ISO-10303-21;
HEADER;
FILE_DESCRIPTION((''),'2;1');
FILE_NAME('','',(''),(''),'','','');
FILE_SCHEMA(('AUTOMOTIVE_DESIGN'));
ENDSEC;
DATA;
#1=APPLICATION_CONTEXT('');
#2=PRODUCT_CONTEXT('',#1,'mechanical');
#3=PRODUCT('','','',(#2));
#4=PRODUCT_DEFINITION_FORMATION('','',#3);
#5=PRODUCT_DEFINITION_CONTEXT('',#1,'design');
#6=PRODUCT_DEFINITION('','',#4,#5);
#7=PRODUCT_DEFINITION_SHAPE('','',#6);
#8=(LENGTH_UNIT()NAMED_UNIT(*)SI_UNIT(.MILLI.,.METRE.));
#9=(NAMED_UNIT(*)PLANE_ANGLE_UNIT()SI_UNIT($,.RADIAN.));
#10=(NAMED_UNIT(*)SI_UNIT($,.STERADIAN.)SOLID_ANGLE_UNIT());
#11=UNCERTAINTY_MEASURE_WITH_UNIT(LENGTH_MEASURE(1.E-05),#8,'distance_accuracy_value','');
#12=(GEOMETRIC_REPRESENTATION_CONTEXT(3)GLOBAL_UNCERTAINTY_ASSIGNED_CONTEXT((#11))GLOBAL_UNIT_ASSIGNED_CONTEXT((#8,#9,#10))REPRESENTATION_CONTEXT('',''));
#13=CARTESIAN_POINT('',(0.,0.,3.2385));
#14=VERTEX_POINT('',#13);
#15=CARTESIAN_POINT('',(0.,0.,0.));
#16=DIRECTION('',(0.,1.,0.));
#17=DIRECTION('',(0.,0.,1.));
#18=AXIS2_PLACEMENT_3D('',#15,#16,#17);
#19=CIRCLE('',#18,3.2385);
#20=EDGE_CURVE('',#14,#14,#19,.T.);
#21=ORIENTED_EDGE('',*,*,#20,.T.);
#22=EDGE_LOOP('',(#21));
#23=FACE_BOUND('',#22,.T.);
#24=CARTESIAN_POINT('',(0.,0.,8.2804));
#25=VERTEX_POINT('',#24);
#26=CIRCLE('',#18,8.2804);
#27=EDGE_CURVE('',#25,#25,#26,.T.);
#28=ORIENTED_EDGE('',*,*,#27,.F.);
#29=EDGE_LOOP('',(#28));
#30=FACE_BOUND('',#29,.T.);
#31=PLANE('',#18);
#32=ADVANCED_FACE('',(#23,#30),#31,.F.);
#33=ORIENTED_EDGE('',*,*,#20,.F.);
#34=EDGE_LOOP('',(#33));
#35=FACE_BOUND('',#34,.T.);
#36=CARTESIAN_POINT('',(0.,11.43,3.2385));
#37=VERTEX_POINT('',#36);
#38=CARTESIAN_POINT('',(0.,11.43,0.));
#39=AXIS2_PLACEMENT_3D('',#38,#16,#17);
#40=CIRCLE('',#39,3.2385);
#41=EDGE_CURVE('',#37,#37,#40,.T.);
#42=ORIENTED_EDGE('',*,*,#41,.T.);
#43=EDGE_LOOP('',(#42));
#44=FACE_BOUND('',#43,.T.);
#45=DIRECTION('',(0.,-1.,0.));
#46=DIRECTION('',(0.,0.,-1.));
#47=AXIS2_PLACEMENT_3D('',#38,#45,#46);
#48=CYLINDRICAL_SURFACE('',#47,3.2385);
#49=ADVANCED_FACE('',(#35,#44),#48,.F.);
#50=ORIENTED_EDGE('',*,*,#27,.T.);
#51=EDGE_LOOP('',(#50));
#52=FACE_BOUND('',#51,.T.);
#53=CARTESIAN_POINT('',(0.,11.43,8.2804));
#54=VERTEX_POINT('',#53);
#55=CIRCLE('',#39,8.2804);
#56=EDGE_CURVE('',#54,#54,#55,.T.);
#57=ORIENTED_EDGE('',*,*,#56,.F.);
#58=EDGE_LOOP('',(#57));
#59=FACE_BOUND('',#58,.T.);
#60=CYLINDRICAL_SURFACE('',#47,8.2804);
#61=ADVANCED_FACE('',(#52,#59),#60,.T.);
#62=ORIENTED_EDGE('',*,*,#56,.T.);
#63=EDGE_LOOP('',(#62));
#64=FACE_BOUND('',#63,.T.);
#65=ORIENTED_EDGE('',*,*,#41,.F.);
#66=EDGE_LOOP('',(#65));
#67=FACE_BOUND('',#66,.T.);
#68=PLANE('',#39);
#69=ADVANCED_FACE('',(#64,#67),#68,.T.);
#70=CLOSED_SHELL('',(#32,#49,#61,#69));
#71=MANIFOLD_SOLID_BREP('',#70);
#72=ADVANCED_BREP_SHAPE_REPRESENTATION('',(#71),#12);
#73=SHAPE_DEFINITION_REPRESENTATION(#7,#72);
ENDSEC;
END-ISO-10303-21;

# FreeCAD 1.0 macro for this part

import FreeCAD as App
import Part
import Sketcher

V = App.Vector
Q = App.Units.Quantity

doc = App.newDocument("Part")
body = doc.addObject("PartDesign::Body", "Body")

sketch1 = body.newObject("Sketcher::SketchObject", "Sketch")
sketch1.AttachmentSupport = (doc.getObject("XZ_Plane"), [""])
sketch1.MapMode = "FlatFace"
sketch1.addGeometry([
    Part.Circle(V(0, 0, 0), V(0, 0, 1), 8.3),
    Part.Circle(V(0, 0, 0), V(0, 0, 1), 3.2),
], False)
sketch1.addConstraint([
    Sketcher.Constraint("Coincident", 0, 3, -1, 1),
    Sketcher.Constraint("Coincident", 1, 3, -1, 1),
    Sketcher.Constraint("Diameter", 0, Q("0.652 in")),
    Sketcher.Constraint("Diameter", 1, Q("0.255 in")),
])
pad1 = body.newObject("PartDesign::Pad", "Pad")
pad1.Profile = sketch1
pad1.Length = Q("0.45 in")
pad1.Reversed = True

doc.recompute()
